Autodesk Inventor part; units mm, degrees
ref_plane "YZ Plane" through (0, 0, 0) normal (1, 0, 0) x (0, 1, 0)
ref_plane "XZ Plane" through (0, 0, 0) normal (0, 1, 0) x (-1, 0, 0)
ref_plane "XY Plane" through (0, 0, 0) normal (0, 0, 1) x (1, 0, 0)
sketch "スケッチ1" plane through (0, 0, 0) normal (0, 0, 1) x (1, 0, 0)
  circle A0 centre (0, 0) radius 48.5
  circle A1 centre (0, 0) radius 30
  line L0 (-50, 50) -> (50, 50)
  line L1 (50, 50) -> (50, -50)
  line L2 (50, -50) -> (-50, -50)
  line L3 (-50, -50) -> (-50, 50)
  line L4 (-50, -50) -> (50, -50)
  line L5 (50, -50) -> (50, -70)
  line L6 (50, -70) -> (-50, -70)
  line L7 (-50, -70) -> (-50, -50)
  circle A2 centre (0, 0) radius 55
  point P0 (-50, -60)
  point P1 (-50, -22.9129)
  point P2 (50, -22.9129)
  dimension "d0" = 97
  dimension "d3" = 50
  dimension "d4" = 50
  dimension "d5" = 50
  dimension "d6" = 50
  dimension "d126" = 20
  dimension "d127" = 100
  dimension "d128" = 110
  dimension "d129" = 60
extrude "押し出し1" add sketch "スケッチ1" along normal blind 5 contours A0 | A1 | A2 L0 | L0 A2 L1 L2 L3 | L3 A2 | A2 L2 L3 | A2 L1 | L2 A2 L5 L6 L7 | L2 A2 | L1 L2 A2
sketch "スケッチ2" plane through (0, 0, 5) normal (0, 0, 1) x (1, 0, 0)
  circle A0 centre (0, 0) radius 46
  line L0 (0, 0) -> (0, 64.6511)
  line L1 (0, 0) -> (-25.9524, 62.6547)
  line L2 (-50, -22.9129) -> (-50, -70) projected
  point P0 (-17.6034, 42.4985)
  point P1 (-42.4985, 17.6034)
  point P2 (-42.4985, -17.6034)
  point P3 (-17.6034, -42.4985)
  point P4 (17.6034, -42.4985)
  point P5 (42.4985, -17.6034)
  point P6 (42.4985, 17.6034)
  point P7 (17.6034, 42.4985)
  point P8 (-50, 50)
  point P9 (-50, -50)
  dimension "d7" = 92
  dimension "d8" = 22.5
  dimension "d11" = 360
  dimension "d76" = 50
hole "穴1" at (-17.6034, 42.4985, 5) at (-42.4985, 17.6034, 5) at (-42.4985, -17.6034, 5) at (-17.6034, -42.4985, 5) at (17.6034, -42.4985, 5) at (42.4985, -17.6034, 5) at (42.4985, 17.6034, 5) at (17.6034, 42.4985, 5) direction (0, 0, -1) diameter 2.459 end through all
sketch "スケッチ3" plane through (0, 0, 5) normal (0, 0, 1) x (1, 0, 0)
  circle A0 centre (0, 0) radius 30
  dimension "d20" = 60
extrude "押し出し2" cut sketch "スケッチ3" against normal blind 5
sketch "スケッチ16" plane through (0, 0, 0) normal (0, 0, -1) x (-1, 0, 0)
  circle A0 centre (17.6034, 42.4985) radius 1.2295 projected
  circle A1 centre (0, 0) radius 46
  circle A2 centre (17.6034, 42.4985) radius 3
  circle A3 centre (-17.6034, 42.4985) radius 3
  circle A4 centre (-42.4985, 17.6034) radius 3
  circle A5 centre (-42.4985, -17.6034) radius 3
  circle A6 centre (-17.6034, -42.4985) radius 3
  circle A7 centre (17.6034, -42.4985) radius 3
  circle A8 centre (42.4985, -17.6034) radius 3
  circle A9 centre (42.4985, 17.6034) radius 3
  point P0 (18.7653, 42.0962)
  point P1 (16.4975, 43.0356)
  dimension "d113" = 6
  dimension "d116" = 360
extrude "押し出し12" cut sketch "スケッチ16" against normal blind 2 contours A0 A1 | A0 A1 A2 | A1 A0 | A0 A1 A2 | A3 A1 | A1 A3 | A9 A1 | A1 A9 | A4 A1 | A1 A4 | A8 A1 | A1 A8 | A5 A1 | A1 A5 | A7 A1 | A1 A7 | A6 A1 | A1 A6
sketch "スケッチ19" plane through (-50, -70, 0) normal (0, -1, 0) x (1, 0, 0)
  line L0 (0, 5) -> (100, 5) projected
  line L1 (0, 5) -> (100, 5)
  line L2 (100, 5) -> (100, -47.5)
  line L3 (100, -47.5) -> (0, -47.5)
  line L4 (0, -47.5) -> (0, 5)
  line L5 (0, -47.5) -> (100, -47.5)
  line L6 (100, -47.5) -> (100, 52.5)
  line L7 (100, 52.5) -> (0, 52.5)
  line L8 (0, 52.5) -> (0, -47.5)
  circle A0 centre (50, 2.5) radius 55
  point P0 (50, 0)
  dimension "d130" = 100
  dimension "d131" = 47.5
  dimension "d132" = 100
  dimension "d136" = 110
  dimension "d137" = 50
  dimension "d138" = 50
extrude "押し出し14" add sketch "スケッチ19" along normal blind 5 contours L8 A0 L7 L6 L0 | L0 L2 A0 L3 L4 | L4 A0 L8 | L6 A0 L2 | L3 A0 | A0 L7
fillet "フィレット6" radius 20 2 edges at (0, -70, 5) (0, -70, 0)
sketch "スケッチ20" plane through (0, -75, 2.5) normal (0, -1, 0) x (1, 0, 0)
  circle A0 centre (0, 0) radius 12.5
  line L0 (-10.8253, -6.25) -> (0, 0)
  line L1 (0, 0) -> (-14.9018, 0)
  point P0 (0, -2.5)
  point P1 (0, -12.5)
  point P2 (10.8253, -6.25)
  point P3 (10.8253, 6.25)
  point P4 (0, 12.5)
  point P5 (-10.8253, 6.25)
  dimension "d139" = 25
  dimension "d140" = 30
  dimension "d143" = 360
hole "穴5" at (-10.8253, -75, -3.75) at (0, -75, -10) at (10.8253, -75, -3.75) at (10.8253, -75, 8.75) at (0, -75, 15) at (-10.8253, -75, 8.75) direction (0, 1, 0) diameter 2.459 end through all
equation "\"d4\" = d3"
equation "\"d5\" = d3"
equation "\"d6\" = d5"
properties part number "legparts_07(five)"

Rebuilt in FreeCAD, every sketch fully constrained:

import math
import FreeCAD as App
import Part
import Sketcher

V = App.Vector


def edges_at(feature, points):
    """Names of the edges that pass closest to the given points."""
    edges = feature.Shape.Edges
    near = lambda p: min(range(len(edges)), key=lambda i: edges[i].distToShape(Part.Vertex(*p))[0])
    return sorted({f"Edge{near(p) + 1}" for p in points})

doc = App.newDocument("Part")
body = doc.addObject("PartDesign::Body", "Body")

sketch1 = body.newObject("Sketcher::SketchObject", "Sketch")
sketch1.AttachmentSupport = (doc.getObject("XY_Plane"), [""])
sketch1.MapMode = "FlatFace"
sketch1.addGeometry([
    Part.LineSegment(V(-50, -23, 0), V(-50, -70, 0)),
    Part.LineSegment(V(-50, -70, 0), V(50, -70, 0)),
    Part.LineSegment(V(50, -70, 0), V(50, -23, 0)),
    Part.ArcOfCircle(Part.Circle(V(0, 0, 0), V(0, 0, 1), 55), math.radians(-25), math.radians(205)),
], False)
sketch1.addConstraint([
    Sketcher.Constraint("Coincident", 0, 2, 1, 1),
    Sketcher.Constraint("Coincident", 1, 2, 2, 1),
    Sketcher.Constraint("Coincident", 2, 2, 3, 1),
    Sketcher.Constraint("Coincident", 3, 2, 0, 1),
    Sketcher.Constraint("Vertical", 0),
    Sketcher.Constraint("Horizontal", 1),
    Sketcher.Constraint("Vertical", 2),
    Sketcher.Constraint("Coincident", 3, 3, -1, 1),
    Sketcher.Constraint("Horizontal", 2, 2, 3, 2),
    Sketcher.Constraint("Radius", 3, 55.0),
    Sketcher.Constraint("DistanceX", 1, 1, 1, 2, 100.0),
    Sketcher.Constraint("DistanceY", 0, 2, -1, 1, 70.0),
])
pad1 = body.newObject("PartDesign::Pad", "Pad")
pad1.Profile = sketch1
pad1.Length = 5

sketch2 = body.newObject("Sketcher::SketchObject", "Sketch001")
sketch2.AttachmentSupport = (doc.getObject("XY_Plane"), [""])
sketch2.MapMode = "FlatFace"
sketch2.AttachmentOffset = App.Placement(V(0, 0, 5), App.Rotation())
sketch2.addGeometry([
    Part.Circle(V(-17.6, 42.5, 0), V(0, 0, 1), 1.2),
    Part.Circle(V(-42.5, 17.6, 0), V(0, 0, 1), 1.2),
    Part.Circle(V(-42.5, -17.6, 0), V(0, 0, 1), 1.2),
    Part.Circle(V(-17.6, -42.5, 0), V(0, 0, 1), 1.2),
    Part.Circle(V(17.6, -42.5, 0), V(0, 0, 1), 1.2),
    Part.Circle(V(42.5, -17.6, 0), V(0, 0, 1), 1.2),
    Part.Circle(V(42.5, 17.6, 0), V(0, 0, 1), 1.2),
    Part.Circle(V(17.6, 42.5, 0), V(0, 0, 1), 1.2),
], False)
sketch2.addConstraint([
    Sketcher.Constraint("Equal", 0, 1),
    Sketcher.Constraint("Equal", 1, 2),
    Sketcher.Constraint("Equal", 2, 3),
    Sketcher.Constraint("Equal", 3, 4),
    Sketcher.Constraint("Equal", 4, 5),
    Sketcher.Constraint("Equal", 5, 6),
    Sketcher.Constraint("Equal", 6, 7),
    Sketcher.Constraint("Symmetric", 0, 3, 4, 3, -1, 1),
    Sketcher.Constraint("Symmetric", 1, 3, 5, 3, -1, 1),
    Sketcher.Constraint("Symmetric", 2, 3, 6, 3, -1, 1),
    Sketcher.Constraint("Symmetric", 3, 3, 7, 3, -1, 1),
    Sketcher.Constraint("Symmetric", 3, 3, 4, 3, -2),
    Sketcher.Constraint("Symmetric", 2, 3, 5, 3, -2),
    Sketcher.Constraint("Diameter", 0, 2.459),
    Sketcher.Constraint("DistanceX", 1, 3, 0, 3, 24.895),
    Sketcher.Constraint("DistanceY", 1, 3, 0, 3, 24.895),
    Sketcher.Constraint("DistanceY", 2, 3, 0, 3, 60.102),
    Sketcher.Constraint("DistanceX", 2, 3, 4, 3, 60.102),
])
doc.recompute()
hole = body.newObject("PartDesign::Hole", "Hole")
hole.Profile = sketch2
hole.ThreadType = "None"
hole.Diameter = 2.459
hole.DepthType = "ThroughAll"

sketch3 = body.newObject("Sketcher::SketchObject", "Sketch002")
sketch3.AttachmentSupport = (doc.getObject("XY_Plane"), [""])
sketch3.MapMode = "FlatFace"
sketch3.AttachmentOffset = App.Placement(V(0, 0, 5), App.Rotation())
sketch3.addGeometry(Part.Circle(V(0, 0, 0), V(0, 0, 1), 30), False)
sketch3.addConstraint([
    Sketcher.Constraint("Coincident", 0, 3, -1, 1),
    Sketcher.Constraint("Diameter", 0, 60.0),
])
pocket1 = body.newObject("PartDesign::Pocket", "Pocket")
pocket1.Profile = sketch3
pocket1.Length = 5

sketch4 = body.newObject("Sketcher::SketchObject", "Sketch003")
sketch4.AttachmentSupport = (doc.getObject("XY_Plane"), [""])
sketch4.MapMode = "FlatFace"
sketch4.addGeometry([
    Part.Circle(V(-17.6, 42.5, 0), V(0, 0, 1), 3),
    Part.Circle(V(17.6, 42.5, 0), V(0, 0, 1), 3),
    Part.Circle(V(-42.5, 17.6, 0), V(0, 0, 1), 3),
    Part.Circle(V(42.5, 17.6, 0), V(0, 0, 1), 3),
    Part.Circle(V(-42.5, -17.6, 0), V(0, 0, 1), 3),
    Part.Circle(V(42.5, -17.6, 0), V(0, 0, 1), 3),
    Part.Circle(V(-17.6, -42.5, 0), V(0, 0, 1), 3),
    Part.Circle(V(17.6, -42.5, 0), V(0, 0, 1), 3),
], False)
sketch4.addConstraint([
    Sketcher.Constraint("Equal", 0, 1),
    Sketcher.Constraint("Equal", 1, 2),
    Sketcher.Constraint("Equal", 2, 3),
    Sketcher.Constraint("Equal", 3, 4),
    Sketcher.Constraint("Equal", 4, 5),
    Sketcher.Constraint("Equal", 5, 6),
    Sketcher.Constraint("Equal", 6, 7),
    Sketcher.Constraint("Symmetric", 3, 3, 4, 3, -1, 1),
    Sketcher.Constraint("Symmetric", 2, 3, 5, 3, -1, 1),
    Sketcher.Constraint("Symmetric", 1, 3, 6, 3, -1, 1),
    Sketcher.Constraint("Symmetric", 0, 3, 7, 3, -1, 1),
    Sketcher.Constraint("Symmetric", 0, 3, 1, 3, -2),
    Sketcher.Constraint("Symmetric", 2, 3, 3, 3, -2),
    Sketcher.Constraint("Diameter", 0, 6.0),
    Sketcher.Constraint("DistanceX", 2, 3, 0, 3, 24.895),
    Sketcher.Constraint("DistanceY", 2, 3, 0, 3, 24.895),
    Sketcher.Constraint("DistanceX", 2, 3, 1, 3, 60.102),
    Sketcher.Constraint("DistanceY", 4, 3, 0, 3, 60.102),
])
pocket2 = body.newObject("PartDesign::Pocket", "Pocket001")
pocket2.Profile = sketch4
pocket2.Length = 2
pocket2.Reversed = True

sketch5 = body.newObject("Sketcher::SketchObject", "Sketch004")
sketch5.AttachmentSupport = (doc.getObject("XZ_Plane"), [""])
sketch5.MapMode = "FlatFace"
sketch5.AttachmentOffset = App.Placement(V(0, 0, 70), App.Rotation())
sketch5.addGeometry(Part.Circle(V(0, 2, 0), V(0, 0, 1), 55), False)
sketch5.addConstraint([
    Sketcher.Constraint("PointOnObject", 0, 3, -2),
    Sketcher.Constraint("Diameter", 0, 110.0),
    Sketcher.Constraint("DistanceY", -1, 1, 0, 3, 2.5),
])
pad2 = body.newObject("PartDesign::Pad", "Pad001")
pad2.Profile = sketch5
pad2.Length = 5
doc.recompute()

fillet = body.newObject("PartDesign::Fillet", "Fillet")
fillet.Base = (pad2, edges_at(pad2, [(0, -70, 5), (0, -70, 0)]))
fillet.Radius = 20

sketch6 = body.newObject("Sketcher::SketchObject", "Sketch005")
sketch6.AttachmentSupport = (doc.getObject("XZ_Plane"), [""])
sketch6.MapMode = "FlatFace"
sketch6.AttachmentOffset = App.Placement(V(0, 0, 75), App.Rotation())
sketch6.addGeometry([
    Part.Circle(V(-10.8, -3.8, 0), V(0, 0, 1), 1.2),
    Part.Circle(V(0, -10, 0), V(0, 0, 1), 1.2),
    Part.Circle(V(10.8, -3.8, 0), V(0, 0, 1), 1.2),
    Part.Circle(V(10.8, 8.8, 0), V(0, 0, 1), 1.2),
    Part.Circle(V(0, 15, 0), V(0, 0, 1), 1.2),
    Part.Circle(V(-10.8, 8.8, 0), V(0, 0, 1), 1.2),
], False)
sketch6.addConstraint([
    Sketcher.Constraint("Equal", 0, 1),
    Sketcher.Constraint("Equal", 1, 2),
    Sketcher.Constraint("Equal", 2, 3),
    Sketcher.Constraint("Equal", 3, 4),
    Sketcher.Constraint("Equal", 4, 5),
    Sketcher.Constraint("Symmetric", 0, 3, 2, 3, -2),
    Sketcher.Constraint("Symmetric", 3, 3, 5, 3, -2),
    Sketcher.Constraint("PointOnObject", 1, 3, -2),
    Sketcher.Constraint("PointOnObject", 4, 3, -2),
    Sketcher.Constraint("Vertical", 2, 3, 3, 3),
    Sketcher.Constraint("Diameter", 0, 2.459),
    Sketcher.Constraint("DistanceY", 1, 3, -1, 1, 10.0),
    Sketcher.Constraint("DistanceY", -1, 1, 4, 3, 15.0),
    Sketcher.Constraint("DistanceY", 2, 3, 3, 3, 12.5),
    Sketcher.Constraint("DistanceY", 0, 3, -1, 1, 3.75),
    Sketcher.Constraint("DistanceX", 0, 3, -1, 1, 10.8253),
])
doc.recompute()
hole2 = body.newObject("PartDesign::Hole", "Hole001")
hole2.Profile = sketch6
hole2.ThreadType = "None"
hole2.Diameter = 2.459
hole2.DepthType = "ThroughAll"

doc.recompute()
